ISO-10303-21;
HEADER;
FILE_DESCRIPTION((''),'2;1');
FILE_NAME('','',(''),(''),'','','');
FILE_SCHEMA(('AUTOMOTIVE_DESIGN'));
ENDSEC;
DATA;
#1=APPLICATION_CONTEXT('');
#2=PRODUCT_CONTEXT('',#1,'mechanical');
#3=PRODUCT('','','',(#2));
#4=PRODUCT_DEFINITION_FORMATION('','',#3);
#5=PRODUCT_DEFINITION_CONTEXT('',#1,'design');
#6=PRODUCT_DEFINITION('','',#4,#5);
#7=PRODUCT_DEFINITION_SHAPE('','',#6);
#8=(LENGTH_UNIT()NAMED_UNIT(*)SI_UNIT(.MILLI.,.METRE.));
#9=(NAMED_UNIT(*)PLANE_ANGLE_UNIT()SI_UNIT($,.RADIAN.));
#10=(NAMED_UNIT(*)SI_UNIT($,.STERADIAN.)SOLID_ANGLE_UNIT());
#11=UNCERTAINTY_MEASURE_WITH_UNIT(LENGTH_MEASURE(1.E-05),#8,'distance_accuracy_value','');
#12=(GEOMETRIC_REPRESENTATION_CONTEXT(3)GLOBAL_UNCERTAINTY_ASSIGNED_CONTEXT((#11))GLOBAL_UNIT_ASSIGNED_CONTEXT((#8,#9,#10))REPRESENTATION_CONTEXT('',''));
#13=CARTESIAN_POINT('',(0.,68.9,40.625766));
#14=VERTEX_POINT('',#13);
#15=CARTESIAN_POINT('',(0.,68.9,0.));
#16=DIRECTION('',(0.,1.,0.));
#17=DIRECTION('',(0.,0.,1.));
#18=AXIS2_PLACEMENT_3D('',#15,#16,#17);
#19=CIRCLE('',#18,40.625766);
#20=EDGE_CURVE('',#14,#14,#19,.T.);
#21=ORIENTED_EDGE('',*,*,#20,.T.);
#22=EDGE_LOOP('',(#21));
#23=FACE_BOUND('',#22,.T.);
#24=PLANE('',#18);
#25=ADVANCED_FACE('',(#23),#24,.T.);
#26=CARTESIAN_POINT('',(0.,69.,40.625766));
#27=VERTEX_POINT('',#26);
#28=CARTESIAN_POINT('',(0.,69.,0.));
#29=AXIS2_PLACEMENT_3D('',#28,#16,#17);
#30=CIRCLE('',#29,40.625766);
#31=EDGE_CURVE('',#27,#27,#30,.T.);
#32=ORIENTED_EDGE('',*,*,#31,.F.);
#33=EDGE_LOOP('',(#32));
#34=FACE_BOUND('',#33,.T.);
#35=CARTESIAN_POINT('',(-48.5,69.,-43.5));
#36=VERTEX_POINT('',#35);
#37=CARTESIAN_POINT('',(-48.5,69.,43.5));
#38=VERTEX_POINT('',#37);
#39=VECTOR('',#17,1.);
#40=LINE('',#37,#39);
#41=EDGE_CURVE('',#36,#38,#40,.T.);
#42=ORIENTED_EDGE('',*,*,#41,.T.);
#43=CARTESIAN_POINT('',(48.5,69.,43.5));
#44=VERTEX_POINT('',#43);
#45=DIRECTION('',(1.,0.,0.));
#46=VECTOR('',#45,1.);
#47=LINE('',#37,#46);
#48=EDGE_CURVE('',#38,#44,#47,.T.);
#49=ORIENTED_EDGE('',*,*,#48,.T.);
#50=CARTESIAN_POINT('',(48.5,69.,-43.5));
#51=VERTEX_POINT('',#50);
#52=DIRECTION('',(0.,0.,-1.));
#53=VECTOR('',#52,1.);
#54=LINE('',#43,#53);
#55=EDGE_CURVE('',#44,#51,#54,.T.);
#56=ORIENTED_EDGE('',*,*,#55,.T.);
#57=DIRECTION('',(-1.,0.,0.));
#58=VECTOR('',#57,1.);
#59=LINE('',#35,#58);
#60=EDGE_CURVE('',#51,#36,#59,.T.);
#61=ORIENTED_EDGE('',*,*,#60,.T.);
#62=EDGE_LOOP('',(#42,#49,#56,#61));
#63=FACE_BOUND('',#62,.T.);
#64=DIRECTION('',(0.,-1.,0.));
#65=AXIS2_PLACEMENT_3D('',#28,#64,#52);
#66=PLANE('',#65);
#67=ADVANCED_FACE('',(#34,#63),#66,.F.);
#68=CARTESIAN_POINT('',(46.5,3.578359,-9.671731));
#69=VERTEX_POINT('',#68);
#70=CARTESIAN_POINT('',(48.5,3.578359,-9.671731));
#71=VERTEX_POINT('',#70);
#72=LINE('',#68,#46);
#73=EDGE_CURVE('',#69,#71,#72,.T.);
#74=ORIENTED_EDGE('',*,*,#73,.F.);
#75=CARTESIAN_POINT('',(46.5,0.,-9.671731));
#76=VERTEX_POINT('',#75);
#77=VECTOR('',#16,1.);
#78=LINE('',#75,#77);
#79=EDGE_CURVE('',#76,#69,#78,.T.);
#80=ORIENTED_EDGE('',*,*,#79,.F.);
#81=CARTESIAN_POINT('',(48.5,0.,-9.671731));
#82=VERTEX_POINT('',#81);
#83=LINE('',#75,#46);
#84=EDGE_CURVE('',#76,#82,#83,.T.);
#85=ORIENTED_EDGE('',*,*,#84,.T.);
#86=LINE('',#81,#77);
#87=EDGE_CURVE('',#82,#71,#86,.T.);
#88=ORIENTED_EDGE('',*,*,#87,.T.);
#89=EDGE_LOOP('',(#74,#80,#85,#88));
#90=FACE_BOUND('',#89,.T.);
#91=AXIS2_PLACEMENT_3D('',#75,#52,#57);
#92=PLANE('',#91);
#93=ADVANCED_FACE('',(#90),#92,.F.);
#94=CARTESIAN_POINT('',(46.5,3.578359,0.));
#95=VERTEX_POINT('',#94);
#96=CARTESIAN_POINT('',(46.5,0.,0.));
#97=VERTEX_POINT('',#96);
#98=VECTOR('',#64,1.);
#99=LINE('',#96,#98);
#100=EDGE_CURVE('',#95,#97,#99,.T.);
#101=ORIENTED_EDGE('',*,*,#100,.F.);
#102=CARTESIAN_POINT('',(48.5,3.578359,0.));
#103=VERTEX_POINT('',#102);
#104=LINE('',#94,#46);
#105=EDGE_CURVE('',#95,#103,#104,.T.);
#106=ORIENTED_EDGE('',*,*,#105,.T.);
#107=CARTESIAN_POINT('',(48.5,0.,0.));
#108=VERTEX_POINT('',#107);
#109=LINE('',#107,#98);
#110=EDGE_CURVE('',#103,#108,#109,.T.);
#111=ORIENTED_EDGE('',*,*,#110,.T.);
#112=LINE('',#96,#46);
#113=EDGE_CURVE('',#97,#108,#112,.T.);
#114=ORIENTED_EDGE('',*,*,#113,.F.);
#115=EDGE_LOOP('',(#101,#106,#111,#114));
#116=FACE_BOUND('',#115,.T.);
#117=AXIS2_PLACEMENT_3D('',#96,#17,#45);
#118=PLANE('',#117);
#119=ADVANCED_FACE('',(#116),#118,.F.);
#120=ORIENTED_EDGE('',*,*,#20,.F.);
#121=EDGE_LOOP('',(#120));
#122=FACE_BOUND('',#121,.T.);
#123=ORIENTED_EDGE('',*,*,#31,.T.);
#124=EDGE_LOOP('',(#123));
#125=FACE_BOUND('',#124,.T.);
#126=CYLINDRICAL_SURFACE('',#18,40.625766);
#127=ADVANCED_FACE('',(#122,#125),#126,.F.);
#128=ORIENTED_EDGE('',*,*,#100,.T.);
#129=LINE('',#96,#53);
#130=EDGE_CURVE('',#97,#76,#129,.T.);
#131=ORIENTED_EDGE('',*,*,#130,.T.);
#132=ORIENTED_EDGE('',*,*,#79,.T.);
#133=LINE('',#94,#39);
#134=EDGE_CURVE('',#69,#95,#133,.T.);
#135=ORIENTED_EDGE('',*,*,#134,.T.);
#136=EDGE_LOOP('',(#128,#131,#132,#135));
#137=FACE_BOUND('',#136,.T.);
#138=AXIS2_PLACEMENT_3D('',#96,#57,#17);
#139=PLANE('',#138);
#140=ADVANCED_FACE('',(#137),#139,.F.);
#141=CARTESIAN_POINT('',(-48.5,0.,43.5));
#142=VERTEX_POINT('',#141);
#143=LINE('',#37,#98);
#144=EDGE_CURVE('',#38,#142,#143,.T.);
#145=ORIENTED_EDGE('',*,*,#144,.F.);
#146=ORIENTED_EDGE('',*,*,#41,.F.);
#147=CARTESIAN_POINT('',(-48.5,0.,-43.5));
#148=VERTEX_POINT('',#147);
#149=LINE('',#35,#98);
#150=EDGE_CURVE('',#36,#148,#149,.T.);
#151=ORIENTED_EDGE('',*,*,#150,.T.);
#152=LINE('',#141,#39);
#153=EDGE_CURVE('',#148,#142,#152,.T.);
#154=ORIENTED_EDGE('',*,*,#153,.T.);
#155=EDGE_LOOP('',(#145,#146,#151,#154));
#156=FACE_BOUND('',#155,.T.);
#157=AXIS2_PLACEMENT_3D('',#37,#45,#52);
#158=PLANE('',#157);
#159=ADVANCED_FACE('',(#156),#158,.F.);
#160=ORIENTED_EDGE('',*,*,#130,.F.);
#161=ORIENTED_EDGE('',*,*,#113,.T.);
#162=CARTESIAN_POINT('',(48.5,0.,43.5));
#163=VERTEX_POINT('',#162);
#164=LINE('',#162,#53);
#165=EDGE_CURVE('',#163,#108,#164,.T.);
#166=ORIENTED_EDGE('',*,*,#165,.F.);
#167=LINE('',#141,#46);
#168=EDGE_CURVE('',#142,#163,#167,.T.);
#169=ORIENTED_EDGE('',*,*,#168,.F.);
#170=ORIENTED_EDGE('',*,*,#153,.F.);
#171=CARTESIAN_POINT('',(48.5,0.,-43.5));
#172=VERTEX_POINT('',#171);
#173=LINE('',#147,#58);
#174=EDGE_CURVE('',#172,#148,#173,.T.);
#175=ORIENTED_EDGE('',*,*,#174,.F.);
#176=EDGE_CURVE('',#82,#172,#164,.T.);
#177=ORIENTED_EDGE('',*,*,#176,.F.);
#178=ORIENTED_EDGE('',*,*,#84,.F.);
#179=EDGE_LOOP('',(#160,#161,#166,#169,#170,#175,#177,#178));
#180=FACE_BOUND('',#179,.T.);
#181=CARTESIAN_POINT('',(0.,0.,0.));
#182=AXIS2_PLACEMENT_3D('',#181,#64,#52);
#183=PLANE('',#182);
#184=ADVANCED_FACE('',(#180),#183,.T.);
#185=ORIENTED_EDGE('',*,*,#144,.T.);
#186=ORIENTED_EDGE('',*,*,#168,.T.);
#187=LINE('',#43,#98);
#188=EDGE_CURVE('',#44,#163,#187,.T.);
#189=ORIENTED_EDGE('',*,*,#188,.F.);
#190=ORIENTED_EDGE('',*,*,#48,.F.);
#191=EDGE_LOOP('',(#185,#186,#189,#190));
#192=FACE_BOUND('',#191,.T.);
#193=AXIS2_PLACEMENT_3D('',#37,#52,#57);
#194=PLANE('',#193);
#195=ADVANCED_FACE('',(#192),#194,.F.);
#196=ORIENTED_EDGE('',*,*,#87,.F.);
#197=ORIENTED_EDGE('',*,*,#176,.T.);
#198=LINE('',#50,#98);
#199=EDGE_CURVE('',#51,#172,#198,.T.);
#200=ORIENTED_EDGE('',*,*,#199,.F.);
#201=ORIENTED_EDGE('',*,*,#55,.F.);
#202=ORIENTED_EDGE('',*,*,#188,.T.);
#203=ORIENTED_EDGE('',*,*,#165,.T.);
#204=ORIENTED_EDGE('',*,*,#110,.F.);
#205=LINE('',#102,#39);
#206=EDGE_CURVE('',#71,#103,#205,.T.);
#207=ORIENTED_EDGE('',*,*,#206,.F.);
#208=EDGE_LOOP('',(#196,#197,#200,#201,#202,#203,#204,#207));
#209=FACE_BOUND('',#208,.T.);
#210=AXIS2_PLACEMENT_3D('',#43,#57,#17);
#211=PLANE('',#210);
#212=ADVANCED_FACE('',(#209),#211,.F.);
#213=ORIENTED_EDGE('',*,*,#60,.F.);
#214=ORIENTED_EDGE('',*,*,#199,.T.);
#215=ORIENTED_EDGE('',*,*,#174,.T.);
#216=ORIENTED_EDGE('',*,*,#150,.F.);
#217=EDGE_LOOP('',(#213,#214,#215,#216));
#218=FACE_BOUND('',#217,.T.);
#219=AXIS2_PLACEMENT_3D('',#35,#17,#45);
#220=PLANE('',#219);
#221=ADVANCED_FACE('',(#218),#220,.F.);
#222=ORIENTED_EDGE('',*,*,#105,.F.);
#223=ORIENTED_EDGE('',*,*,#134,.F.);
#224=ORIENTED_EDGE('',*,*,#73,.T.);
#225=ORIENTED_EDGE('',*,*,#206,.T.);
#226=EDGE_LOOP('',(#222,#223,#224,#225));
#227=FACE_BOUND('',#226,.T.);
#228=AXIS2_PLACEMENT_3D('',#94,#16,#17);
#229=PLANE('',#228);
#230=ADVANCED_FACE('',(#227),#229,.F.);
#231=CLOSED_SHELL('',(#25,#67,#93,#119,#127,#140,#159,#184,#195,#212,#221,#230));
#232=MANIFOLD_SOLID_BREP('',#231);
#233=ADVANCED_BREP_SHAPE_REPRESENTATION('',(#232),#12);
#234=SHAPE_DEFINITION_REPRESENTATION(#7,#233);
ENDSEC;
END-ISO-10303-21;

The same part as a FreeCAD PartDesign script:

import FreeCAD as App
import Part
import Sketcher

V = App.Vector

doc = App.newDocument("Part")
body = doc.addObject("PartDesign::Body", "Body")

# Sketch on XZ plane
sketch1 = body.newObject("Sketcher::SketchObject", "Sketch")
sketch1.AttachmentSupport = (doc.getObject("XZ_Plane"), [""])
sketch1.MapMode = "FlatFace"
sketch1.addGeometry([
    Part.LineSegment(V(-48, -44, 0), V(-48, 44, 0)),
    Part.LineSegment(V(-48, 44, 0), V(48, 44, 0)),
    Part.LineSegment(V(48, 44, 0), V(48, -44, 0)),
    Part.LineSegment(V(48, -44, 0), V(-48, -44, 0)),
], False)
sketch1.addConstraint([
    Sketcher.Constraint("Coincident", 0, 2, 1, 1),
    Sketcher.Constraint("Coincident", 1, 2, 2, 1),
    Sketcher.Constraint("Coincident", 2, 2, 3, 1),
    Sketcher.Constraint("Coincident", 3, 2, 0, 1),
    Sketcher.Constraint("Vertical", 0),
    Sketcher.Constraint("Horizontal", 1),
    Sketcher.Constraint("Vertical", 2),
    Sketcher.Constraint("Horizontal", 3),
    Sketcher.Constraint("Symmetric", 0, 2, 2, 2, -1, 1),
    Sketcher.Constraint("DistanceX", 1, 1, 1, 2, 97.0),
    Sketcher.Constraint("DistanceY", 0, 1, 0, 2, 87.0),
])
pad1 = body.newObject("PartDesign::Pad", "Pad")
pad1.Profile = sketch1
pad1.Length = 69
pad1.Reversed = True

# Sketch on XZ plane
sketch2 = body.newObject("Sketcher::SketchObject", "Sketch001")
sketch2.AttachmentSupport = (doc.getObject("XZ_Plane"), [""])
sketch2.MapMode = "FlatFace"
sketch2.AttachmentOffset = App.Placement(V(0, 0, -69), App.Rotation())
sketch2.addGeometry(Part.Circle(V(0, 0, 0), V(0, 0, 1), 41), False)
sketch2.addConstraint([
    Sketcher.Constraint("Coincident", 0, 3, -1, 1),
    Sketcher.Constraint("Diameter", 0, 81.251532),
])
pocket1 = body.newObject("PartDesign::Pocket", "Pocket")
pocket1.Profile = sketch2
pocket1.Length = 0.1
pocket1.Reversed = True

# Sketch on YZ plane
sketch3 = body.newObject("Sketcher::SketchObject", "Sketch002")
sketch3.AttachmentSupport = (doc.getObject("YZ_Plane"), [""])
sketch3.MapMode = "FlatFace"
sketch3.AttachmentOffset = App.Placement(V(0, 0, 48.5), App.Rotation())
sketch3.addGeometry([
    Part.LineSegment(V(3.6, 0, 0), V(0, 0, 0)),
    Part.LineSegment(V(0, 0, 0), V(0, -9.7, 0)),
    Part.LineSegment(V(0, -9.7, 0), V(3.6, -9.7, 0)),
    Part.LineSegment(V(3.6, -9.7, 0), V(3.6, 0, 0)),
], False)
sketch3.addConstraint([
    Sketcher.Constraint("Coincident", 0, 2, 1, 1),
    Sketcher.Constraint("Coincident", 1, 2, 2, 1),
    Sketcher.Constraint("Coincident", 2, 2, 3, 1),
    Sketcher.Constraint("Coincident", 3, 2, 0, 1),
    Sketcher.Constraint("Horizontal", 0),
    Sketcher.Constraint("Vertical", 1),
    Sketcher.Constraint("Horizontal", 2),
    Sketcher.Constraint("Vertical", 3),
    Sketcher.Constraint("Coincident", 0, 2, -1, 1),
    Sketcher.Constraint("DistanceX", 0, 2, 0, 1, 3.578359),
    Sketcher.Constraint("DistanceY", 1, 2, 1, 1, 9.671731),
])
pocket2 = body.newObject("PartDesign::Pocket", "Pocket001")
pocket2.Profile = sketch3
pocket2.Length = 2

doc.recompute()
